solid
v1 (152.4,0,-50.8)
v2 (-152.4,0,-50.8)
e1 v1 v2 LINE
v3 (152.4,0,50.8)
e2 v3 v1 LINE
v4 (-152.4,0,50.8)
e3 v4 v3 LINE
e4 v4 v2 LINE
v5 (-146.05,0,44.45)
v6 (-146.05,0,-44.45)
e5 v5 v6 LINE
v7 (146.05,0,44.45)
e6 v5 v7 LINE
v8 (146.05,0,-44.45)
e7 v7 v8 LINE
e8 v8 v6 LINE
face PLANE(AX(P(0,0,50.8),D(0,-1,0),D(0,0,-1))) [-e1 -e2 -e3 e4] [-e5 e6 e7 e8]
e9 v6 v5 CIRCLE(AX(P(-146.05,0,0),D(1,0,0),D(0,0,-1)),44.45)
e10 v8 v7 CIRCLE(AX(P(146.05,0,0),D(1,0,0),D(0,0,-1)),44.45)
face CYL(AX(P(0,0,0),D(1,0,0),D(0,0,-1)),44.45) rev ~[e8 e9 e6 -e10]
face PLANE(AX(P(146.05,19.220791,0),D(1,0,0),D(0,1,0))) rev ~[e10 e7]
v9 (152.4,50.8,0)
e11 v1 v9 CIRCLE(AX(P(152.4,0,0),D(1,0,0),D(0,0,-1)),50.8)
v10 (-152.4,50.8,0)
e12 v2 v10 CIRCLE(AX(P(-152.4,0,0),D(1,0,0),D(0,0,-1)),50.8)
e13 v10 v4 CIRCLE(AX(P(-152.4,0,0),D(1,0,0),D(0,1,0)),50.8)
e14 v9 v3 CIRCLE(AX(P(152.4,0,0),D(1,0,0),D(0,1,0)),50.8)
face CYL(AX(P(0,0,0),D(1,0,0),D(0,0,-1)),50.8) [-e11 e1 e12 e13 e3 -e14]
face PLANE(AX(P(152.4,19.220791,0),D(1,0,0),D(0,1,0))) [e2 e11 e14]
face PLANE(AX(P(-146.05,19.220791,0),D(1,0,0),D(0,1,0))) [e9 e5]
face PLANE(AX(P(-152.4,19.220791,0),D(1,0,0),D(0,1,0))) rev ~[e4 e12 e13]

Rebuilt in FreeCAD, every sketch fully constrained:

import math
import FreeCAD as App
import Part
import Sketcher

V = App.Vector
Q = App.Units.Quantity


def faces_at(feature, points):
    """Names of the faces that lie closest to the given points."""
    faces = feature.Shape.Faces
    near = lambda p: min(range(len(faces)), key=lambda i: faces[i].distToShape(Part.Vertex(*p))[0])
    return sorted({f"Face{near(p) + 1}" for p in points})

doc = App.newDocument("Part")
body = doc.addObject("PartDesign::Body", "Body")

# Sketch on YZ plane
sketch1 = doc.addObject("Sketcher::SketchObject", "Sketch")
body.addObject(sketch1)
sketch1.AttachmentSupport = (doc.YZ_Plane, [""])
sketch1.MapMode = "FlatFace"
sketch1.addGeometry([
    Part.ArcOfCircle(Part.Circle(V(0, 0, 0), V(0, 0, 1), 51), math.radians(-90), math.radians(0)),
    Part.ArcOfCircle(Part.Circle(V(0, 0, 0), V(0, 0, 1), 51), math.radians(0), math.radians(90)),
    Part.LineSegment(V(0, 51, 0), V(0, -51, 0)),
], False)
sketch1.addConstraint([
    Sketcher.Constraint("Tangent", 0, 2, 1, 1),
    Sketcher.Constraint("Coincident", 1, 2, 2, 1),
    Sketcher.Constraint("Coincident", 2, 2, 0, 1),
    Sketcher.Constraint("Vertical", 2),
    Sketcher.Constraint("Coincident", 0, 3, -1, 1),
    Sketcher.Constraint("Equal", 0, 1),
    Sketcher.Constraint("PointOnObject", 0, 2, -1),
    Sketcher.Constraint("PointOnObject", 1, 2, -2),
    Sketcher.Constraint("Radius", 0, Q("2 in")),
])
pad1 = doc.addObject("PartDesign::Pad", "Pad")
body.addObject(pad1)
pad1.Profile = sketch1
pad1.Length = Q("12 in")
pad1.Midplane = True
doc.recompute()

thickness = doc.addObject("PartDesign::Thickness", "Thickness")
body.addObject(thickness)
thickness.Base = (pad1, faces_at(pad1, [(0, 0, 0)]))
thickness.Value = Q("0.25 in")
thickness.Reversed = True
thickness.Join = "Arc"

doc.recompute()
